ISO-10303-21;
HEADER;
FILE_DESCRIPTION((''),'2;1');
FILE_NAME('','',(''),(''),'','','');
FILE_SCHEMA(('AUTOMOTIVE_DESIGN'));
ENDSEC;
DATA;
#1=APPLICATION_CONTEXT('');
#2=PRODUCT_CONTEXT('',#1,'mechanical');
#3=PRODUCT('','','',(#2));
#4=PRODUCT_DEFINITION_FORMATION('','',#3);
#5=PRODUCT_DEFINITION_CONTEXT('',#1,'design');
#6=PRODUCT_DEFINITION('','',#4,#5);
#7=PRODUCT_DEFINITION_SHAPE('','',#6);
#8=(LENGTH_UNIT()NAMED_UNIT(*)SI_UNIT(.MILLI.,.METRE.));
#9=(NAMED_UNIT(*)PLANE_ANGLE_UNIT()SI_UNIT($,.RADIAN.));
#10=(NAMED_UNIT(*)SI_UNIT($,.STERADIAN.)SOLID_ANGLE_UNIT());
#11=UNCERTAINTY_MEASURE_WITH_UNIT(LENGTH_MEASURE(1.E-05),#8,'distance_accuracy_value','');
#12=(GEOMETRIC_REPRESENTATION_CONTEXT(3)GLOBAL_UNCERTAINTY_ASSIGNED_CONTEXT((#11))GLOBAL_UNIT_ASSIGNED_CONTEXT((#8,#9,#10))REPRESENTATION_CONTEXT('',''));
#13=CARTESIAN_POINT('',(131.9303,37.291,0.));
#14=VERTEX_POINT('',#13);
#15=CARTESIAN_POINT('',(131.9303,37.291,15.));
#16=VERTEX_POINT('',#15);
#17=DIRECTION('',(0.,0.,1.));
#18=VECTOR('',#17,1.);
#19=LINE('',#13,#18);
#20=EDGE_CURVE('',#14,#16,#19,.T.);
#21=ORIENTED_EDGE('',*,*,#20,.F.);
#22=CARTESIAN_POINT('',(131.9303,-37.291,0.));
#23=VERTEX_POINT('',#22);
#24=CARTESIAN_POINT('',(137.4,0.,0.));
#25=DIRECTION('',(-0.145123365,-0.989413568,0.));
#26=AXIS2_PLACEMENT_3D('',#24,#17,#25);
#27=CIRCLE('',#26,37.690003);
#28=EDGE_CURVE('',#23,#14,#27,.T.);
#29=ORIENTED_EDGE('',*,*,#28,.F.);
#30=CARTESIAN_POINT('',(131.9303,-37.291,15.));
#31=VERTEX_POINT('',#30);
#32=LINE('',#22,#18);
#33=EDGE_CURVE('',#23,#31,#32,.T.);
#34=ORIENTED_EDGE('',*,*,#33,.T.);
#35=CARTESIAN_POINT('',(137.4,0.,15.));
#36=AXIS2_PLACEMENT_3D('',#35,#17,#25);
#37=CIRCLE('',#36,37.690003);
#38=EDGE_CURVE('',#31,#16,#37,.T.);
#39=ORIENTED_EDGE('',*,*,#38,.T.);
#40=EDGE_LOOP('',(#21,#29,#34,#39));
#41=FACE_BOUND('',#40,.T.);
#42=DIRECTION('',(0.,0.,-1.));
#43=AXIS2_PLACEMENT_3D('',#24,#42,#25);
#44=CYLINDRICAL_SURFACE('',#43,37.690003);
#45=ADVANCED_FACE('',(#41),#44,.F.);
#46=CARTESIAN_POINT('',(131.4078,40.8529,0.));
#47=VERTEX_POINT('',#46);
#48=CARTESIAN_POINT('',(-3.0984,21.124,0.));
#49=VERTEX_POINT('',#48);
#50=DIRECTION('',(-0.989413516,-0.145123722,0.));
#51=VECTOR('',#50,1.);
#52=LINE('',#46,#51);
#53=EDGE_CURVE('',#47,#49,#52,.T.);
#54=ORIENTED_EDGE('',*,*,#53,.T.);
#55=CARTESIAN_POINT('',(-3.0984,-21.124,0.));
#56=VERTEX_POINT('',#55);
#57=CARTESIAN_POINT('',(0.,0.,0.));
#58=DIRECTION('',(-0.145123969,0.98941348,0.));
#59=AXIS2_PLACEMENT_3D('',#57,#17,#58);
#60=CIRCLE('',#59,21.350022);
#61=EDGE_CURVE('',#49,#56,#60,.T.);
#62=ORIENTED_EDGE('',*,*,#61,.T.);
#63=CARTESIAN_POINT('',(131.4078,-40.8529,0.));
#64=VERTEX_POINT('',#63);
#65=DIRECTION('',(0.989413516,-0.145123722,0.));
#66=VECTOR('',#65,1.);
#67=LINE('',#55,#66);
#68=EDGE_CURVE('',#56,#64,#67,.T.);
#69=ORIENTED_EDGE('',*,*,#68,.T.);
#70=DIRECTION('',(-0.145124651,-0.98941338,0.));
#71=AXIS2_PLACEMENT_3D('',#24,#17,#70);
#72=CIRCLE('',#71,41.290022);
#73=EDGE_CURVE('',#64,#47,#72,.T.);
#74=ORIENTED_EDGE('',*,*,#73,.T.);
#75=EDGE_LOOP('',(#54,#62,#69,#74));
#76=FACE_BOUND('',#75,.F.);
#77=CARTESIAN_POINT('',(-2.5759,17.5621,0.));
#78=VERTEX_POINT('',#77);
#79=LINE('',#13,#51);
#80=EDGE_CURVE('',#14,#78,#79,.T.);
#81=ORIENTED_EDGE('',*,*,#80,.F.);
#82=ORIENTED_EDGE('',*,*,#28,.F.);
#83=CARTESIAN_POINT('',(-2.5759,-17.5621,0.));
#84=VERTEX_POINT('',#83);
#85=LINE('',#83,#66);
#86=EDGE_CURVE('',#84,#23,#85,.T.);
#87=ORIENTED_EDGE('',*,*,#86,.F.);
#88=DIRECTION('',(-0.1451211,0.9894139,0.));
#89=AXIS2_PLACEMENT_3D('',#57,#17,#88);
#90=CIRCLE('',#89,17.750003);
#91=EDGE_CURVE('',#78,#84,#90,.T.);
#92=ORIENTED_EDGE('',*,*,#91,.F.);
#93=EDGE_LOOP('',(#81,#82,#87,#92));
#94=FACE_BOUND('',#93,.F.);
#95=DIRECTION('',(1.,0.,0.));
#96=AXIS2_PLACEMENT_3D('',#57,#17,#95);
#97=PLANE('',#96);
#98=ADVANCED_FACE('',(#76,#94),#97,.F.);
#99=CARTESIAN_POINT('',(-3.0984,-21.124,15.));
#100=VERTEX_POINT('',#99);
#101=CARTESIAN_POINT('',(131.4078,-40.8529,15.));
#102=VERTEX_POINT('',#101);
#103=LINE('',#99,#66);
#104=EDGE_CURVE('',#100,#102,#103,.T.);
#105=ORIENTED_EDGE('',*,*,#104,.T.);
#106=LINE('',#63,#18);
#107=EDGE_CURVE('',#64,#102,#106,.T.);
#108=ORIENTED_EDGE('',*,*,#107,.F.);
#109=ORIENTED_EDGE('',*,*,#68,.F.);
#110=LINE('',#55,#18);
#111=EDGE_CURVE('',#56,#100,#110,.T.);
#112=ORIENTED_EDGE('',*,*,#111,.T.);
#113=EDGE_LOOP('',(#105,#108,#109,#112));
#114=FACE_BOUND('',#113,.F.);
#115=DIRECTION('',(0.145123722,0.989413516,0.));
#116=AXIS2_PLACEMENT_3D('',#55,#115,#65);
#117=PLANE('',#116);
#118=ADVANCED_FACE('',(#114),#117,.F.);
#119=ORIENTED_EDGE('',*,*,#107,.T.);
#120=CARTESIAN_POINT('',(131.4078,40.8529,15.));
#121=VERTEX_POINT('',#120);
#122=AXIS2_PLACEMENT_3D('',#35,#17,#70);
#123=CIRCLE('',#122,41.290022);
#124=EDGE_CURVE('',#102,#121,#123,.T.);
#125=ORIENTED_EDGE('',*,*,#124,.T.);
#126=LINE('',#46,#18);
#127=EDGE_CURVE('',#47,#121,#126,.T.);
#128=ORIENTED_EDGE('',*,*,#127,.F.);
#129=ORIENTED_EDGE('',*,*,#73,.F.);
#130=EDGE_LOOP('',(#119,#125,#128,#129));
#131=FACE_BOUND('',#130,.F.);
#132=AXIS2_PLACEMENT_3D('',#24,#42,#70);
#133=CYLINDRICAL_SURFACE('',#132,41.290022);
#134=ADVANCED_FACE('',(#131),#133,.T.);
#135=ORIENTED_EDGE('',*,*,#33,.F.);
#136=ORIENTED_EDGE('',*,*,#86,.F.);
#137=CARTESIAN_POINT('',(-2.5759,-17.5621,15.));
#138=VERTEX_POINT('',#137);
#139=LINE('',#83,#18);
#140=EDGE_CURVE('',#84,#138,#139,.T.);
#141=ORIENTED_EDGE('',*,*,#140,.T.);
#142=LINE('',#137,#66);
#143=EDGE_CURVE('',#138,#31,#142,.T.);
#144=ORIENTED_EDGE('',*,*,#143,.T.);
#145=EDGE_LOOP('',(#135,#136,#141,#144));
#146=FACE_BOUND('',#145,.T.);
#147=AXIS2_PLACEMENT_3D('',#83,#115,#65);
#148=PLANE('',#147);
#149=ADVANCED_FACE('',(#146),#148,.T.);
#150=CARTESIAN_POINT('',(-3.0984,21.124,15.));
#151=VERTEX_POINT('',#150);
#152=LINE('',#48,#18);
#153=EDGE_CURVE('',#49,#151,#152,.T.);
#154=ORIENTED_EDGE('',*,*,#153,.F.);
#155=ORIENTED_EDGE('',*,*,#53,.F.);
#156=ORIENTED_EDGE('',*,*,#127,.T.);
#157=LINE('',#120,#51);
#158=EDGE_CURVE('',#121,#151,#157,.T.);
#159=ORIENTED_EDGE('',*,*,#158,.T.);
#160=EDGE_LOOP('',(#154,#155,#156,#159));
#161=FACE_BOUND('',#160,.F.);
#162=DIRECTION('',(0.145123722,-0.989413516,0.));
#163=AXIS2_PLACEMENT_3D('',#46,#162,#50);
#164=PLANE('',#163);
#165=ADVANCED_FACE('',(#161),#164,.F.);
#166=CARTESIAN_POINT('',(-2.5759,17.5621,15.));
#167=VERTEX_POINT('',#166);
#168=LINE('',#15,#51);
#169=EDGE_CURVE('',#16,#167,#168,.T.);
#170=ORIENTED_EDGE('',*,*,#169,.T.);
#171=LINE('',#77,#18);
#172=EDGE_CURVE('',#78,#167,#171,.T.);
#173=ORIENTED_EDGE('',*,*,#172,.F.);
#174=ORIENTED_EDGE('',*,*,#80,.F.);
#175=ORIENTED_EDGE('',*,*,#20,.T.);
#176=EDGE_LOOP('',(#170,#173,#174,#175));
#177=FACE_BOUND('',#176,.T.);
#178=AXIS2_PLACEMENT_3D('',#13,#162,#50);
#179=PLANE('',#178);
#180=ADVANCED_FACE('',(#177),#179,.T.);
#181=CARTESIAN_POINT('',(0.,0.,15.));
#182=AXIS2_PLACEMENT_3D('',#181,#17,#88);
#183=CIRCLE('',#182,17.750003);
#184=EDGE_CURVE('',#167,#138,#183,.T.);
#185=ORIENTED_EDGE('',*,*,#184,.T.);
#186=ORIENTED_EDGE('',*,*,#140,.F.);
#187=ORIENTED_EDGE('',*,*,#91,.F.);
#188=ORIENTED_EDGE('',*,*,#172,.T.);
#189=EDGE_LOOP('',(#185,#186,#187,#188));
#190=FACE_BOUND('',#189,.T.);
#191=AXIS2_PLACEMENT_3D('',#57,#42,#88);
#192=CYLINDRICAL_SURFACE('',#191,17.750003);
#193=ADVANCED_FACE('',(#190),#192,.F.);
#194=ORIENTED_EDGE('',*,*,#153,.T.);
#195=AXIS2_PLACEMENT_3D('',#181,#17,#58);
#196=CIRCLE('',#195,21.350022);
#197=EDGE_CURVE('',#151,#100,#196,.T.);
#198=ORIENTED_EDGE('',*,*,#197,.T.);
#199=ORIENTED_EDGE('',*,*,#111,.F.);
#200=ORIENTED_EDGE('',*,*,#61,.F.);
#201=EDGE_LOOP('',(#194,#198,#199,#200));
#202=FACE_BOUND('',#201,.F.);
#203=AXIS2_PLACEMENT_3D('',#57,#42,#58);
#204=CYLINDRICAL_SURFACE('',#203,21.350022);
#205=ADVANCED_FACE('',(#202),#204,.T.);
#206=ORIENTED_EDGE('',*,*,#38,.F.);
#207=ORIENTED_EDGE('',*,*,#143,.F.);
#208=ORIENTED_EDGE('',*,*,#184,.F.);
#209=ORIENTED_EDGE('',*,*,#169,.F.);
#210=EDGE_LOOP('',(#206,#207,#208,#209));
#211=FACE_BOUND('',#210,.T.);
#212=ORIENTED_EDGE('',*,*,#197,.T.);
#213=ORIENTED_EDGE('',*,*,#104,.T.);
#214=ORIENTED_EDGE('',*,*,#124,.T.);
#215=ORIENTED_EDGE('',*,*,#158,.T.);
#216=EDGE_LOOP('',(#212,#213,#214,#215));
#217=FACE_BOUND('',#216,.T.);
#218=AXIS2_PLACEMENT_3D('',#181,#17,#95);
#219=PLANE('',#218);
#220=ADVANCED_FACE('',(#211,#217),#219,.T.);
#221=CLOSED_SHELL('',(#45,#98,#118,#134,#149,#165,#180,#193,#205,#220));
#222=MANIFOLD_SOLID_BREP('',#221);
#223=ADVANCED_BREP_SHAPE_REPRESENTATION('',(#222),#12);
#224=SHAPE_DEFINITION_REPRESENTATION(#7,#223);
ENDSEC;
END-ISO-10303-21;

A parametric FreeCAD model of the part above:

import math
import FreeCAD as App
import Part
import Sketcher
from FreeCAD import Vector
Q = App.Units.Quantity

doc = App.newDocument("Part")
body = doc.addObject("PartDesign::Body", "Body")

sketch1 = doc.addObject("Sketcher::SketchObject", "Sketch")
body.addObject(sketch1)
sketch1.AttachmentSupport = (doc.XY_Plane, [""])
sketch1.MapMode = "FlatFace"
sketch1.addGeometry([
    Part.LineSegment(Vector(-3.0984, -21.124, 0), Vector(131.4078, -40.8529, 0)),
    Part.ArcOfCircle(Part.Circle(Vector(137.4, 0, 0), Vector(0, 0, 1), 41.290022), math.radians(-98.344498), math.radians(98.344498)),
    Part.LineSegment(Vector(131.4078, 40.8529, 0), Vector(-3.0984, 21.124, 0)),
    Part.ArcOfCircle(Part.Circle(Vector(0, 0, 0), Vector(0, 0, 1), 21.350022), math.radians(98.344458), math.radians(261.655542)),
    Part.ArcOfCircle(Part.Circle(Vector(137.4, 0, 0), Vector(0, 0, 1), 37.690003), math.radians(-98.344423), math.radians(98.344423)),
    Part.LineSegment(Vector(131.9303, -37.291, 0), Vector(-2.5759, -17.5621, 0)),
    Part.ArcOfCircle(Part.Circle(Vector(0, 0, 0), Vector(0, 0, 1), 17.750003), math.radians(98.344292), math.radians(261.655708)),
    Part.LineSegment(Vector(-2.5759, 17.5621, 0), Vector(131.9303, 37.291, 0)),
], False)
sketch1.addConstraint([
    Sketcher.Constraint("Tangent", 0, 2, 1, 1),
    Sketcher.Constraint("Tangent", 1, 2, 2, 1),
    Sketcher.Constraint("Tangent", 2, 2, 3, 1),
    Sketcher.Constraint("Tangent", 3, 2, 0, 1),
    Sketcher.Constraint("Tangent", 4, 1, 5, 1),
    Sketcher.Constraint("Tangent", 5, 2, 6, 2),
    Sketcher.Constraint("Tangent", 6, 1, 7, 1),
    Sketcher.Constraint("Tangent", 7, 2, 4, 2),
    Sketcher.Constraint("Coincident", 3, 3, -1, 1),
    Sketcher.Constraint("Coincident", 6, 3, -1, 1),
    Sketcher.Constraint("Coincident", 4, 3, 1, 3),
    Sketcher.Constraint("PointOnObject", 1, 3, -1),
    Sketcher.Constraint("Parallel", 0, 5),
    Sketcher.Constraint("DistanceX", -1, 1, 1, 3, Q("137.4 mm")),
    Sketcher.Constraint("Radius", 1, Q("41.29 mm")),
    Sketcher.Constraint("Radius", 3, Q("21.35 mm")),
    Sketcher.Constraint("Radius", 4, Q("37.69 mm")),
])
pad1 = doc.addObject("PartDesign::Pad", "Pad")
body.addObject(pad1)
pad1.Profile = sketch1
pad1.Length = 15

doc.recompute()
